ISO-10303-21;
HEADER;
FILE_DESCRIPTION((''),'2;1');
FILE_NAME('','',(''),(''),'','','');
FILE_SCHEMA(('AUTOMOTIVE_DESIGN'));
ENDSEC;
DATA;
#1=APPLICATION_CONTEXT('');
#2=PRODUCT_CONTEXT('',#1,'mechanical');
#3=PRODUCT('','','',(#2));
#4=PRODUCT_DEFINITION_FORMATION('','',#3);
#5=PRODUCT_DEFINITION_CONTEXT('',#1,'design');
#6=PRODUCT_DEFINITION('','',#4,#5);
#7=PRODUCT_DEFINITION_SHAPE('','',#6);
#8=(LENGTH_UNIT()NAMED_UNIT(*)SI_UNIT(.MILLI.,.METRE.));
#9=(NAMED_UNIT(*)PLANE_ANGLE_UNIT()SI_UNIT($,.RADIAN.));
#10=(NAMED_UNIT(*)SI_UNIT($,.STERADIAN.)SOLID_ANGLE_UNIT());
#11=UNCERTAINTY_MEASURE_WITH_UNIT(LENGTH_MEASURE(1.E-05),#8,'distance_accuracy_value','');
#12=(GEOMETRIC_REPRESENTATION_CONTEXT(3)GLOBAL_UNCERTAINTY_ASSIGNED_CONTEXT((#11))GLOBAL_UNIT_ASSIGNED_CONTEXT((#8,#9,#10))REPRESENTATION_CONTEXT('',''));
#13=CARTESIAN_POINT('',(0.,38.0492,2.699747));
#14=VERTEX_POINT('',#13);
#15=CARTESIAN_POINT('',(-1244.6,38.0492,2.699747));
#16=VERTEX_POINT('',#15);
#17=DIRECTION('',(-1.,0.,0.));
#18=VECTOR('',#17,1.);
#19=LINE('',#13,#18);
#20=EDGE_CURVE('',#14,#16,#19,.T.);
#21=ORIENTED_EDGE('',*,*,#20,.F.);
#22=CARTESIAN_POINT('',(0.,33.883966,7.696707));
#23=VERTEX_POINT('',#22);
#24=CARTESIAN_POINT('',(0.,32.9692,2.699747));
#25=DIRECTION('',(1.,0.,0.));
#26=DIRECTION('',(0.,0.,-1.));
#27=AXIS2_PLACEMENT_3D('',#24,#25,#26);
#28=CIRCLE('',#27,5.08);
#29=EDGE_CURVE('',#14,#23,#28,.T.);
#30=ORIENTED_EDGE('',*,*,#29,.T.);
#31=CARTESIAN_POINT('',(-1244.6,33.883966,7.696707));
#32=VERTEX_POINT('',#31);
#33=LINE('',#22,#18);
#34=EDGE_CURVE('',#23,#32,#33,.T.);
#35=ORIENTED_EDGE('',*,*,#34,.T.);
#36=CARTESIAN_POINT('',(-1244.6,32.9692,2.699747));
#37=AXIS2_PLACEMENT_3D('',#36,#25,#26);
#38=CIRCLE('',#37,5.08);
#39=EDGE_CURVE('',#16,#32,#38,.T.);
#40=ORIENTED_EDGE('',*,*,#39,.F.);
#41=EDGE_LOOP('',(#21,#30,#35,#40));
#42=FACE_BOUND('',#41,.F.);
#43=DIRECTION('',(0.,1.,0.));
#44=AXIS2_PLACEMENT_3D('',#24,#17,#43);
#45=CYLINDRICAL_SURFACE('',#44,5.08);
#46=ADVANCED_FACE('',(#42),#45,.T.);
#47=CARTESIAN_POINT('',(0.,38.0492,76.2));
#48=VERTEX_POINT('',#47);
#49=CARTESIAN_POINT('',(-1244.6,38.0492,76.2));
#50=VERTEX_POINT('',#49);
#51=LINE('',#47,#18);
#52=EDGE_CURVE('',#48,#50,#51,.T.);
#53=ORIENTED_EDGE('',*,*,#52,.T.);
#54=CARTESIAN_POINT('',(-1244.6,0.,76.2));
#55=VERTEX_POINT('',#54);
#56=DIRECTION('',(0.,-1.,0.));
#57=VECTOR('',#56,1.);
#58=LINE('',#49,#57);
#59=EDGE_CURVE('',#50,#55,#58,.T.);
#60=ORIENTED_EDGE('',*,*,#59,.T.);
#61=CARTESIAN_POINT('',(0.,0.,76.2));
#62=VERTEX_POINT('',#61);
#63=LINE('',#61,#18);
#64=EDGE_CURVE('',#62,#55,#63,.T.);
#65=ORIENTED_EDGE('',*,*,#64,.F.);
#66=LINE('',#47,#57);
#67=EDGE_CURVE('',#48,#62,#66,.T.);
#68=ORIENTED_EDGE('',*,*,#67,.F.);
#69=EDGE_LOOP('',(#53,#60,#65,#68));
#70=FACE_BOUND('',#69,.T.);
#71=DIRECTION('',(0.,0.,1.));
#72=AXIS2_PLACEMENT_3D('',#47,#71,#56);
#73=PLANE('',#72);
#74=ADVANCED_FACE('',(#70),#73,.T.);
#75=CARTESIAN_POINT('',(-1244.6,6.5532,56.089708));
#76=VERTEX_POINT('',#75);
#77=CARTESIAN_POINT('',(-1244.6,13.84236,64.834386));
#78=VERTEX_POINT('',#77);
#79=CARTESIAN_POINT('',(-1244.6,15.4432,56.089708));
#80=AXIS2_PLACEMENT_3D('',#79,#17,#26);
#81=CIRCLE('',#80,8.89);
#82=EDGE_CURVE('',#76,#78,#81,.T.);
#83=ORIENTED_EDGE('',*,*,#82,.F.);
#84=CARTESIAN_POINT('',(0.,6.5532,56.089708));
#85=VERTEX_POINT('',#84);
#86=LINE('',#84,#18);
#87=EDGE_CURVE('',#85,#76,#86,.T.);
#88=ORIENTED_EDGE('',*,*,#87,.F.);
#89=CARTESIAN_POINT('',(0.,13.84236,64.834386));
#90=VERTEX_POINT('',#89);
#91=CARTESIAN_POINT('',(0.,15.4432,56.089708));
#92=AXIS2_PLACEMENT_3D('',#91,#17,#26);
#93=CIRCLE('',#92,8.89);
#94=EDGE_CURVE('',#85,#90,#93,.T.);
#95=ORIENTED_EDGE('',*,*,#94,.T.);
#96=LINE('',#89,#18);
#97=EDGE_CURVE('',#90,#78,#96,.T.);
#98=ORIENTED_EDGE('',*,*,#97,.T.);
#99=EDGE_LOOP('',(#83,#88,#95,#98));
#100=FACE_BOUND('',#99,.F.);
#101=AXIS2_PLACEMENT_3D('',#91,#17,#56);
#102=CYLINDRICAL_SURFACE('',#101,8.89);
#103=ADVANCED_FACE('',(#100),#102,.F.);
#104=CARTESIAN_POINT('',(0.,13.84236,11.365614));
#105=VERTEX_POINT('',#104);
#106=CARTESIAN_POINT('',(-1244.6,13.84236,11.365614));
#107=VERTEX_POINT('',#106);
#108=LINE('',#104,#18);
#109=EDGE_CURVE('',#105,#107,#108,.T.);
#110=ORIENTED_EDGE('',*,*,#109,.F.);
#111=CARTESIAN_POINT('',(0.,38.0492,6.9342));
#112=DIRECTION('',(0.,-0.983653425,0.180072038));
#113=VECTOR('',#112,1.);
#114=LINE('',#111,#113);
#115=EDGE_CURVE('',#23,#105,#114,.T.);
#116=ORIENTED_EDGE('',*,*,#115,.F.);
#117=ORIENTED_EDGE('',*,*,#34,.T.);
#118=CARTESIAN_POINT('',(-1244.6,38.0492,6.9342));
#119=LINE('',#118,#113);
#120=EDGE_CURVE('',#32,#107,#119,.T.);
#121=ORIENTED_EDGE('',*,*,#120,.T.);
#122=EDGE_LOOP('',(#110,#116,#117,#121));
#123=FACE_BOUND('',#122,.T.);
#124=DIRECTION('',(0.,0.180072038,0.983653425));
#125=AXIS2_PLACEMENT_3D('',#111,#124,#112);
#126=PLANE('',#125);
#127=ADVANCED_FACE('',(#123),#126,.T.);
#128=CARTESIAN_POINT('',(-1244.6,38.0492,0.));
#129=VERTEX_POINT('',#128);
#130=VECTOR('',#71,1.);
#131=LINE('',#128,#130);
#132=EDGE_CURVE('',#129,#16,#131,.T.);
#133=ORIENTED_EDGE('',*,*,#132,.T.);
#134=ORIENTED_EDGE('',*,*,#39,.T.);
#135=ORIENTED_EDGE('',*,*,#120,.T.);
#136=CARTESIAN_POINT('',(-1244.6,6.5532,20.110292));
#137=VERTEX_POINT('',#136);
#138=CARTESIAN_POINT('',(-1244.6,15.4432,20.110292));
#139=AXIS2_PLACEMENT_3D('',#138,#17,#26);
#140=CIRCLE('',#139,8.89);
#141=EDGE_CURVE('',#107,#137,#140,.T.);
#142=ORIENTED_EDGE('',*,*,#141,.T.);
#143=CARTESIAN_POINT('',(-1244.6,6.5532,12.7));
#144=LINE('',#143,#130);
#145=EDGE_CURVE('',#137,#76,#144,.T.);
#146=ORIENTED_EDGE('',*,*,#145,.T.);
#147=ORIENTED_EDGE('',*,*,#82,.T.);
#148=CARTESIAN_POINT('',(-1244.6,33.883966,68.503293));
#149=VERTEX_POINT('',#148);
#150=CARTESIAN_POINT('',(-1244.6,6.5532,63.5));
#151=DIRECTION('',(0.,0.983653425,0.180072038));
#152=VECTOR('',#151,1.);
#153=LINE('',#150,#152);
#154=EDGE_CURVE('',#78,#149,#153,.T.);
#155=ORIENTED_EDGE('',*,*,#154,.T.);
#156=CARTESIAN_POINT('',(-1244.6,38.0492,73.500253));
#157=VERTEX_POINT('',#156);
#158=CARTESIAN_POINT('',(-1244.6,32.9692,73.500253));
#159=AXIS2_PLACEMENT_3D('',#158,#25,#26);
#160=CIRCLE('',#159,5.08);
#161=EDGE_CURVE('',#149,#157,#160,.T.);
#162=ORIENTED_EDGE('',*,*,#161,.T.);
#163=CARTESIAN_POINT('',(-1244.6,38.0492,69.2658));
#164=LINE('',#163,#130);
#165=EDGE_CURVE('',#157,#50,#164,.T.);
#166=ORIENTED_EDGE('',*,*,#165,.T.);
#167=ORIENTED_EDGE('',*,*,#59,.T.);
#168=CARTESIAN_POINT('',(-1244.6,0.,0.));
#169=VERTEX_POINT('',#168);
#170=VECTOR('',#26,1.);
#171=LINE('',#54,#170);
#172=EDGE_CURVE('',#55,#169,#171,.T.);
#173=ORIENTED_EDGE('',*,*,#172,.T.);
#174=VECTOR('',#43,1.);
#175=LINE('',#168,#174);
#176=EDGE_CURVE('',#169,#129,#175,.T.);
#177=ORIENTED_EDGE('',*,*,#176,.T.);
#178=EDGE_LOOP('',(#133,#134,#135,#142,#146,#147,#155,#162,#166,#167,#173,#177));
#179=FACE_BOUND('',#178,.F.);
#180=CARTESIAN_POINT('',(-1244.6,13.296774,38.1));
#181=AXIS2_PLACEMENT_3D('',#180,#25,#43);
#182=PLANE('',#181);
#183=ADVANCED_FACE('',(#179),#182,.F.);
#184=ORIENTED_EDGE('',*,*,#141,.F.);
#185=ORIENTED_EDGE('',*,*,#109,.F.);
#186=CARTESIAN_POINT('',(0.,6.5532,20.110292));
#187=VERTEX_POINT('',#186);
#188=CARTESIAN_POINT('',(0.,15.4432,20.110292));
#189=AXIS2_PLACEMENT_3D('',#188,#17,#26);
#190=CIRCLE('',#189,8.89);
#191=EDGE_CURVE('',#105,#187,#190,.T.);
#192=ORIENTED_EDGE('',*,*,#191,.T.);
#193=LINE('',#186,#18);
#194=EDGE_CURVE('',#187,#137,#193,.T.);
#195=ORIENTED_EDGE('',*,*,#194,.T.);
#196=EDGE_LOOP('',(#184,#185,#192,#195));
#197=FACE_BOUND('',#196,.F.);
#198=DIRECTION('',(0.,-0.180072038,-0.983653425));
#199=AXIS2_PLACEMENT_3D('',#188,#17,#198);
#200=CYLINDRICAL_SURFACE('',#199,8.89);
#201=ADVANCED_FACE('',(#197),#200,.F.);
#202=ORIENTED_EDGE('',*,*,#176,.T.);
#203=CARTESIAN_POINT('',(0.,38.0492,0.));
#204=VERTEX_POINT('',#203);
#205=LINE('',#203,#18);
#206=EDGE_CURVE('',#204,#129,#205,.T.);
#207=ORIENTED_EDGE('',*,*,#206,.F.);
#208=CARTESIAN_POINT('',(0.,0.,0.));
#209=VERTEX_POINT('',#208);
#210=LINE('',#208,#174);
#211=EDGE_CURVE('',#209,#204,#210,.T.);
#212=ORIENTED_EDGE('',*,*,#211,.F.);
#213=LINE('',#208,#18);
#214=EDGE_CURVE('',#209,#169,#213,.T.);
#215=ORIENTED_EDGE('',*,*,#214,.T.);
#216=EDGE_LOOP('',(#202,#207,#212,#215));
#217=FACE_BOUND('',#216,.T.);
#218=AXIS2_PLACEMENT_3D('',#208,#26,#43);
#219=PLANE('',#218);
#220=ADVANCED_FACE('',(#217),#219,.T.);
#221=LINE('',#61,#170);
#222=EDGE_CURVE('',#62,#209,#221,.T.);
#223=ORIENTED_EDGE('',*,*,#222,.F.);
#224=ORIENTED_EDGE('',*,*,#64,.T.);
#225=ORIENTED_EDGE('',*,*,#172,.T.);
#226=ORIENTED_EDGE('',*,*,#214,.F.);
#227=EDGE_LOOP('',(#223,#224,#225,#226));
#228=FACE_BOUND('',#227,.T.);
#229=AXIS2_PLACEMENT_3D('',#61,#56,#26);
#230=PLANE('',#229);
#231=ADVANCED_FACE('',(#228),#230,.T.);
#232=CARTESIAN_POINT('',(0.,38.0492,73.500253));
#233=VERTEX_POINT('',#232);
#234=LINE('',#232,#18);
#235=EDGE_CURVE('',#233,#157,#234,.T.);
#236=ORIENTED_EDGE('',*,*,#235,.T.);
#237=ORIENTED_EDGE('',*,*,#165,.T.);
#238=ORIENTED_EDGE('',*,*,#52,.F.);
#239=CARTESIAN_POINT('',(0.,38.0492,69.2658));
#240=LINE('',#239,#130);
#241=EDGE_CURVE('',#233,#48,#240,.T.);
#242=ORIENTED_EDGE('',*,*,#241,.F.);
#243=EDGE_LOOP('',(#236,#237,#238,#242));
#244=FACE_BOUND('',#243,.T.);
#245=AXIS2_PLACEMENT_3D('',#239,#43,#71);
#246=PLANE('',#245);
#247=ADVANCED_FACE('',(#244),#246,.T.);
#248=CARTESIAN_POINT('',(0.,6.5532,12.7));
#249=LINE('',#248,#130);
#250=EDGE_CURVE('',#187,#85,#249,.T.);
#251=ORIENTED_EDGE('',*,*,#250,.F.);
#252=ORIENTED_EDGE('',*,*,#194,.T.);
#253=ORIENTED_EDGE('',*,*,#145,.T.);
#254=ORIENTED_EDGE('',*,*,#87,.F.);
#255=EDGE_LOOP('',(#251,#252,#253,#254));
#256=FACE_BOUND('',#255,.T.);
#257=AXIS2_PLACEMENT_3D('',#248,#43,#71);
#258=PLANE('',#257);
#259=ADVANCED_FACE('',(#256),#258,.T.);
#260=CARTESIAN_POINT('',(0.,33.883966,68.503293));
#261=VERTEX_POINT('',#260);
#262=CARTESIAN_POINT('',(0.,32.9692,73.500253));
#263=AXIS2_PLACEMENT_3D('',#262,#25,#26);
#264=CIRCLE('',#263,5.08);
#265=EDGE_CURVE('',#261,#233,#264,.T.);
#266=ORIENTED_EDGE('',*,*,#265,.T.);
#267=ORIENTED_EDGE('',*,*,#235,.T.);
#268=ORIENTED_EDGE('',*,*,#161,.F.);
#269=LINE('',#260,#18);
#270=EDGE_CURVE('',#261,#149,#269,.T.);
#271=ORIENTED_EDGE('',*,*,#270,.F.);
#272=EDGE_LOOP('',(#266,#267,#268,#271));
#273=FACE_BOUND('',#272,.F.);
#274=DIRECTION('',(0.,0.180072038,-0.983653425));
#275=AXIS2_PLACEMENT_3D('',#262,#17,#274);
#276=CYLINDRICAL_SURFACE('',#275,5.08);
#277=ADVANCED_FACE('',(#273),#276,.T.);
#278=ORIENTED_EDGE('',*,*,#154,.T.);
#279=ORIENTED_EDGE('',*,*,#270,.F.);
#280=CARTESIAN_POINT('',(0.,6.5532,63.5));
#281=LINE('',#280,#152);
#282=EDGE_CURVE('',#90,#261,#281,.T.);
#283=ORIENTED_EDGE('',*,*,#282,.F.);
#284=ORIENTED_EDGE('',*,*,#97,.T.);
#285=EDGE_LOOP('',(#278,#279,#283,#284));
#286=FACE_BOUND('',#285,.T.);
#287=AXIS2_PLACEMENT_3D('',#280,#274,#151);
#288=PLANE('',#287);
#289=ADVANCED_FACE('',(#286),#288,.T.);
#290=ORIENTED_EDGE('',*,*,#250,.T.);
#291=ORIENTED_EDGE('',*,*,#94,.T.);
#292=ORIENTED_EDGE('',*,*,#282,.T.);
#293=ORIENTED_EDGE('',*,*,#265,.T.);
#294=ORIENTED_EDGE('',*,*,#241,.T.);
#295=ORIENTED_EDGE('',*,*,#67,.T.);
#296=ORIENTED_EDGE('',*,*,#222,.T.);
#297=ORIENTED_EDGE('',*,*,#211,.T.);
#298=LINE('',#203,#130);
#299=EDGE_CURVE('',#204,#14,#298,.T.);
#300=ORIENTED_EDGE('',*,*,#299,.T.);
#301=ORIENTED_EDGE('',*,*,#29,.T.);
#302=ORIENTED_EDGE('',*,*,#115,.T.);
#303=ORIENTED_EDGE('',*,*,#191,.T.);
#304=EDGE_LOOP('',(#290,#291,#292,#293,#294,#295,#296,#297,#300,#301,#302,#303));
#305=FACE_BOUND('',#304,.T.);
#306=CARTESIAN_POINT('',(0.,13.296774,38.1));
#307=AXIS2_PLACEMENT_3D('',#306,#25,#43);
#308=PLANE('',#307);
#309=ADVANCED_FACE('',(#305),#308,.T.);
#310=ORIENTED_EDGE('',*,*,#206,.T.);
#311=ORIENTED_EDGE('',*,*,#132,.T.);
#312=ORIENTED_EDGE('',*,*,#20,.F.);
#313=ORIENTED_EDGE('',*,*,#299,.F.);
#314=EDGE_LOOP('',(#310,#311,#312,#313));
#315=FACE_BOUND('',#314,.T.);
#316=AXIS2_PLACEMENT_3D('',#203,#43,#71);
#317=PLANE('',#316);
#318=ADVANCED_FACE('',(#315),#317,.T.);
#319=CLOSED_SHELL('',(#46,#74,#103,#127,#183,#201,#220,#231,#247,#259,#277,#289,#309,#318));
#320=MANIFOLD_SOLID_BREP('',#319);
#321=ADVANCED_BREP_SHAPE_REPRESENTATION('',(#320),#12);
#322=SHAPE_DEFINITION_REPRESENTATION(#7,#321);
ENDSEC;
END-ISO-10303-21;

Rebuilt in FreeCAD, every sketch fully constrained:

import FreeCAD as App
import Part
import Sketcher
from FreeCAD import Vector
Q = App.Units.Quantity


def edges_at(feature, points):
    """Names of the edges that pass closest to the given points."""
    edges = feature.Shape.Edges
    near = lambda p: min(range(len(edges)), key=lambda i: edges[i].distToShape(Part.Vertex(*p))[0])
    return sorted({f"Edge{near(p) + 1}" for p in points})

doc = App.newDocument("Part")
params = doc.addObject("Spreadsheet::Sheet", "Params")
for row, (alias, value) in enumerate([
    ("sketch1_height", "3 in"),
    ("sketch1_height2", "2 in"),
    ("sketch1_width", "1.498 in"),
    ("sketch1_height3", "0.273 in"),
    ("pad1_length", "49 in"),
    ("fillet_radius", "0.2 in"),
    ("fillet2_radius", "0.35 in"),
], start=1):
    params.set(f"A{row}", alias)
    params.set(f"B{row}", "=" + value)
    params.setAlias(f"B{row}", alias)

body = doc.addObject("PartDesign::Body", "Body")

# Sketch on YZ plane
sketch1 = body.newObject("Sketcher::SketchObject", "Sketch")
sketch1.AttachmentSupport = (doc.getObject("YZ_Plane"), [""])
sketch1.MapMode = "FlatFace"
sketch1.addGeometry([
    Part.LineSegment(Vector(0, 76, 0), Vector(0, 0, 0)),  # 0
    Part.LineSegment(Vector(0, 0, 0), Vector(38, 0, 0)),  # 1
    Part.LineSegment(Vector(38, 0, 0), Vector(38, 7, 0)),  # 2
    Part.LineSegment(Vector(38, 7, 0), Vector(7, 13, 0)),  # 3
    Part.LineSegment(Vector(7, 13, 0), Vector(7, 64, 0)),  # 4
    Part.LineSegment(Vector(7, 64, 0), Vector(38, 69, 0)),  # 5
    Part.LineSegment(Vector(38, 69, 0), Vector(38, 76, 0)),  # 6
    Part.LineSegment(Vector(38, 76, 0), Vector(0, 76, 0)),  # 7
], False)
sketch1.addConstraint([
    Sketcher.Constraint("Coincident", 0, 2, 1, 1),
    Sketcher.Constraint("Coincident", 1, 2, 2, 1),
    Sketcher.Constraint("Coincident", 2, 2, 3, 1),
    Sketcher.Constraint("Coincident", 3, 2, 4, 1),
    Sketcher.Constraint("Coincident", 4, 2, 5, 1),
    Sketcher.Constraint("Coincident", 5, 2, 6, 1),
    Sketcher.Constraint("Coincident", 6, 2, 7, 1),
    Sketcher.Constraint("Coincident", 7, 2, 0, 1),
    Sketcher.Constraint("Vertical", 0),
    Sketcher.Constraint("Horizontal", 1),
    Sketcher.Constraint("Vertical", 2),
    Sketcher.Constraint("Vertical", 4),
    Sketcher.Constraint("Vertical", 6),
    Sketcher.Constraint("Horizontal", 7),
    Sketcher.Constraint("Coincident", 0, 2, -1, 1),
    Sketcher.Constraint("Vertical", 2, 2, 5, 2),
    Sketcher.Constraint("Equal", 2, 6),
    Sketcher.Constraint("Equal", 3, 5),
    Sketcher.Constraint("DistanceY", 0, 2, 0, 1, Q("3 in")),
    Sketcher.Constraint("DistanceY", 4, 1, 4, 2, Q("2 in")),
    Sketcher.Constraint("DistanceX", 1, 1, 1, 2, Q("1.498 in")),
    Sketcher.Constraint("DistanceY", 2, 1, 2, 2, Q("0.273 in")),
    Sketcher.Constraint("DistanceX", 3, 2, 2, 2, Q("1.24 in")),
])
sketch1.setExpression("Constraints[18]", "Params.sketch1_height")
sketch1.setExpression("Constraints[19]", "Params.sketch1_height2")
sketch1.setExpression("Constraints[20]", "Params.sketch1_width")
sketch1.setExpression("Constraints[21]", "Params.sketch1_height3")
pad1 = body.newObject("PartDesign::Pad", "Pad")
pad1.Profile = sketch1
pad1.setExpression("Length", "Params.pad1_length")
pad1.Reversed = True
doc.recompute()

fillet = body.newObject("PartDesign::Fillet", "Fillet")
fillet.Base = (pad1, edges_at(pad1, [(-622.3, 38.049, 69.266), (-622.3, 38.049, 6.934)]))
fillet.setExpression("Radius", "Params.fillet_radius")
doc.recompute()

fillet2 = body.newObject("PartDesign::Fillet", "Fillet001")
fillet2.Base = (fillet, edges_at(fillet, [(-622.3, 6.553, 12.7), (-622.3, 6.553, 63.5)]))
fillet2.setExpression("Radius", "Params.fillet2_radius")

doc.recompute()
